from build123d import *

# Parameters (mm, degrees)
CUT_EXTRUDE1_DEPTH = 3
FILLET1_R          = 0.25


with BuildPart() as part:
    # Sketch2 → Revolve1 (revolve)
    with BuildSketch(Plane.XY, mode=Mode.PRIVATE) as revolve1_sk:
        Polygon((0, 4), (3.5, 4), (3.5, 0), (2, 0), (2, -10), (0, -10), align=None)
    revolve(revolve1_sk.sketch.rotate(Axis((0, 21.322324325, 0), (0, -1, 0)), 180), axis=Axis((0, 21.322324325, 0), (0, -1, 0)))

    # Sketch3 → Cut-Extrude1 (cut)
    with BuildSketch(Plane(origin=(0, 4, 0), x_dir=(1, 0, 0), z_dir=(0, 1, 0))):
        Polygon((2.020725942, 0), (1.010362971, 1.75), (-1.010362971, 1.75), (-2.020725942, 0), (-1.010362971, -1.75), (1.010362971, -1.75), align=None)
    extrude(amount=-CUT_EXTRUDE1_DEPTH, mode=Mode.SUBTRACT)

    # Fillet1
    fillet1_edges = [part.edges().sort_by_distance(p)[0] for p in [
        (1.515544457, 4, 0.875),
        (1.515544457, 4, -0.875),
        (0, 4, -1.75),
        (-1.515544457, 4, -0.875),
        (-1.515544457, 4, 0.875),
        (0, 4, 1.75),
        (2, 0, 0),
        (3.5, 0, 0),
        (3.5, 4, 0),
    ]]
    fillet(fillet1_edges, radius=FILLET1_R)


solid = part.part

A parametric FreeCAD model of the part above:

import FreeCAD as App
import Part
import Sketcher
Q = App.Units.Quantity


def edges_at(feature, points):
    """Names of the edges that pass closest to the given points."""
    edges = feature.Shape.Edges
    near = lambda p: min(range(len(edges)), key=lambda i: edges[i].distToShape(Part.Vertex(*p))[0])
    return sorted({f"Edge{near(p) + 1}" for p in points})

doc = App.newDocument("Part")
body = doc.addObject("PartDesign::Body", "Body")

# Sketch on XY plane
sketch1 = body.newObject("Sketcher::SketchObject", "Sketch")
sketch1.AttachmentSupport = (doc.getObject("XY_Plane"), [""])
sketch1.MapMode = "FlatFace"
sketch1.addGeometry([
    Part.LineSegment(App.Vector(3.5, 4, 0), App.Vector(0, 4, 0)),  # 0
    Part.LineSegment(App.Vector(0, 4, 0), App.Vector(0, -10, 0)),  # 1
    Part.LineSegment(App.Vector(0, -10, 0), App.Vector(2, -10, 0)),  # 2
    Part.LineSegment(App.Vector(2, -10, 0), App.Vector(2, 0, 0)),  # 3
    Part.LineSegment(App.Vector(2, 0, 0), App.Vector(3.5, 0, 0)),  # 4
    Part.LineSegment(App.Vector(3.5, 0, 0), App.Vector(3.5, 4, 0)),  # 5
], False)
sketch1.addConstraint([
    Sketcher.Constraint("Coincident", 0, 2, 1, 1),
    Sketcher.Constraint("Coincident", 1, 2, 2, 1),
    Sketcher.Constraint("Coincident", 2, 2, 3, 1),
    Sketcher.Constraint("Coincident", 3, 2, 4, 1),
    Sketcher.Constraint("Coincident", 4, 2, 5, 1),
    Sketcher.Constraint("Coincident", 5, 2, 0, 1),
    Sketcher.Constraint("Horizontal", 0),
    Sketcher.Constraint("Vertical", 1),
    Sketcher.Constraint("Horizontal", 2),
    Sketcher.Constraint("Vertical", 3),
    Sketcher.Constraint("Horizontal", 4),
    Sketcher.Constraint("Vertical", 5),
    Sketcher.Constraint("PointOnObject", 0, 2, -2),
    Sketcher.Constraint("PointOnObject", 3, 2, -1),
    Sketcher.Constraint("DistanceX", 2, 1, 2, 2, Q("2 mm")),
    Sketcher.Constraint("DistanceY", 1, 2, 1, 1, Q("14 mm")),
    Sketcher.Constraint("DistanceY", 3, 1, 3, 2, Q("10 mm")),
    Sketcher.Constraint("DistanceX", 0, 2, 0, 1, Q("3.5 mm")),
])
revolution = body.newObject("PartDesign::Revolution", "Revolution")
revolution.Profile = sketch1
revolution.ReferenceAxis = (sketch1, ["V_Axis"])
revolution.Angle = 360

# Sketch on XZ plane
sketch2 = body.newObject("Sketcher::SketchObject", "Sketch001")
sketch2.AttachmentSupport = (doc.getObject("XZ_Plane"), [""])
sketch2.MapMode = "FlatFace"
sketch2.AttachmentOffset = App.Placement(App.Vector(0, 0, -4), App.Rotation())
sketch2.addGeometry([
    Part.LineSegment(App.Vector(2, 0, 0), App.Vector(1, -1.8, 0)),  # 0
    Part.LineSegment(App.Vector(1, -1.8, 0), App.Vector(-1, -1.8, 0)),  # 1
    Part.LineSegment(App.Vector(-1, -1.8, 0), App.Vector(-2, 0, 0)),  # 2
    Part.LineSegment(App.Vector(-2, 0, 0), App.Vector(-1, 1.8, 0)),  # 3
    Part.LineSegment(App.Vector(-1, 1.8, 0), App.Vector(1, 1.8, 0)),  # 4
    Part.LineSegment(App.Vector(1, 1.8, 0), App.Vector(2, 0, 0)),  # 5
], False)
sketch2.addConstraint([
    Sketcher.Constraint("Coincident", 0, 2, 1, 1),
    Sketcher.Constraint("Coincident", 1, 2, 2, 1),
    Sketcher.Constraint("Coincident", 2, 2, 3, 1),
    Sketcher.Constraint("Coincident", 3, 2, 4, 1),
    Sketcher.Constraint("Coincident", 4, 2, 5, 1),
    Sketcher.Constraint("Coincident", 5, 2, 0, 1),
    Sketcher.Constraint("Horizontal", 1),
    Sketcher.Constraint("Horizontal", 4),
    Sketcher.Constraint("Symmetric", 0, 2, 3, 2, -1, 1),
    Sketcher.Constraint("Symmetric", 2, 2, 5, 2, -1, 1),
    Sketcher.Constraint("PointOnObject", 2, 2, -1),
    Sketcher.Constraint("Parallel", 2, 5),
    Sketcher.Constraint("Vertical", 1, 2, 3, 2),
    Sketcher.Constraint("Angle", 0, Q("-120 deg")),
    Sketcher.Constraint("DistanceY", 1, 2, 3, 2, Q("3.5 mm")),
    Sketcher.Constraint("DistanceX", 1, 2, 1, 1, Q("2.020726 mm")),
])
pocket1 = body.newObject("PartDesign::Pocket", "Pocket")
pocket1.Profile = sketch2
pocket1.Length = 3
pocket1.Reversed = True
doc.recompute()

fillet = body.newObject("PartDesign::Fillet", "Fillet")
fillet.Base = (pocket1, edges_at(pocket1, [
    (1.516, 4, 0.875),
    (1.516, 4, -0.875),
    (0, 4, -1.75),
    (-1.516, 4, -0.875),
    (-1.516, 4, 0.875),
    (0, 4, 1.75),
    (2, 0, 0),
    (3.5, 0, 0),
    (3.5, 4, 0),
]))
fillet.Radius = 0.25

doc.recompute()
